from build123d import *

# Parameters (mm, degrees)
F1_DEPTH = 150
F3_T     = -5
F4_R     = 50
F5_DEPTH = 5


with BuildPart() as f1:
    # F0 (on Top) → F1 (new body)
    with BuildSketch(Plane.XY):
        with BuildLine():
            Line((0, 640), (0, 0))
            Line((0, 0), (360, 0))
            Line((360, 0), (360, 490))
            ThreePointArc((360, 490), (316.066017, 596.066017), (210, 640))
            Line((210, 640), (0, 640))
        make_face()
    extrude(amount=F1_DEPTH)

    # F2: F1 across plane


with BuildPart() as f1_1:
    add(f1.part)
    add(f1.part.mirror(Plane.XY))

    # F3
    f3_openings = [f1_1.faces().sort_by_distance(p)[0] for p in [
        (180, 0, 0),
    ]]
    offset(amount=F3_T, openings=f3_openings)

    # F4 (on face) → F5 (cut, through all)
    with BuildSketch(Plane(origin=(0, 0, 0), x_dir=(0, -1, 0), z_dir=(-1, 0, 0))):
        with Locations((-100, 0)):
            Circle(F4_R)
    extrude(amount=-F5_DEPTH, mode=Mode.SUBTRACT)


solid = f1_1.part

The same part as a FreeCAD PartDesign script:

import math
import FreeCAD as App
import Part
import Sketcher

V = App.Vector
Q = App.Units.Quantity


def faces_at(feature, points):
    """Names of the faces that lie closest to the given points."""
    faces = feature.Shape.Faces
    near = lambda p: min(range(len(faces)), key=lambda i: faces[i].distToShape(Part.Vertex(*p))[0])
    return sorted({f"Face{near(p) + 1}" for p in points})

doc = App.newDocument("Part")
body = doc.addObject("PartDesign::Body", "Body")

# Sketch on XY plane
sketch1 = doc.addObject("Sketcher::SketchObject", "Sketch")
body.addObject(sketch1)
sketch1.AttachmentSupport = (doc.XY_Plane, [""])
sketch1.MapMode = "FlatFace"
sketch1.addGeometry([
    Part.LineSegment(V(0, 640, 0), V(0, 0, 0)),  # 0
    Part.LineSegment(V(0, 0, 0), V(360, 0, 0)),  # 1
    Part.LineSegment(V(360, 0, 0), V(360, 490, 0)),  # 2
    Part.ArcOfCircle(Part.Circle(V(210, 490, 0), V(0, 0, 1), 150), math.radians(0), math.radians(90)),  # 3
    Part.LineSegment(V(210, 640, 0), V(0, 640, 0)),  # 4
], False)
sketch1.addConstraint([
    Sketcher.Constraint("Coincident", 0, 2, 1, 1),
    Sketcher.Constraint("Coincident", 1, 2, 2, 1),
    Sketcher.Constraint("Tangent", 2, 2, 3, 1),
    Sketcher.Constraint("Tangent", 3, 2, 4, 1),
    Sketcher.Constraint("Coincident", 4, 2, 0, 1),
    Sketcher.Constraint("Vertical", 0),
    Sketcher.Constraint("Horizontal", 1),
    Sketcher.Constraint("Vertical", 2),
    Sketcher.Constraint("Horizontal", 4),
    Sketcher.Constraint("Coincident", 0, 2, -1, 1),
    Sketcher.Constraint("Radius", 3, Q("150.000001 mm")),
    Sketcher.Constraint("DistanceX", 1, 1, 1, 2, Q("360 mm")),
    Sketcher.Constraint("DistanceY", 0, 2, 0, 1, Q("640 mm")),
])
pad1 = doc.addObject("PartDesign::Pad", "Pad")
body.addObject(pad1)
pad1.Profile = sketch1
pad1.Length = 150
body2 = doc.addObject("PartDesign::Body", "Body001")
doc.recompute()

body2.BaseFeature = body
doc.recompute()

mirroring = doc.addObject("Part::Mirroring", "Mirroring")
mirroring.Source = body
mirroring.Base = V(0, 0, 0)
mirroring.Normal = V(0, 0, 1)
body3 = doc.addObject("PartDesign::Body", "Body002")
body3.BaseFeature = mirroring
boolean = doc.addObject("PartDesign::Boolean", "Boolean")
body2.addObject(boolean)
boolean.Type = "Fuse"
boolean.addObjects([body3])
doc.recompute()

thickness = doc.addObject("PartDesign::Thickness", "Thickness")
body2.addObject(thickness)
thickness.Base = (boolean, faces_at(boolean, [(180, 0, 0)]))
thickness.Value = 5
thickness.Reversed = True
thickness.Join = "Arc"

# Sketch on YZ plane
sketch2 = doc.addObject("Sketcher::SketchObject", "Sketch001")
body2.addObject(sketch2)
sketch2.AttachmentSupport = (doc.getObject("YZ_Plane001"), [""])
sketch2.MapMode = "FlatFace"
sketch2.addGeometry(Part.Circle(V(100, 0, 0), V(0, 0, 1), 50), False)
sketch2.addConstraint([
    Sketcher.Constraint("PointOnObject", 0, 3, -1),
    Sketcher.Constraint("Diameter", 0, Q("100 mm")),
    Sketcher.Constraint("DistanceX", -1, 1, 0, 3, Q("100 mm")),
])
pocket1 = doc.addObject("PartDesign::Pocket", "Pocket")
body2.addObject(pocket1)
pocket1.Profile = sketch2
pocket1.Length = 5
pocket1.Reversed = True
mirroring.Visibility = False

doc.recompute()
